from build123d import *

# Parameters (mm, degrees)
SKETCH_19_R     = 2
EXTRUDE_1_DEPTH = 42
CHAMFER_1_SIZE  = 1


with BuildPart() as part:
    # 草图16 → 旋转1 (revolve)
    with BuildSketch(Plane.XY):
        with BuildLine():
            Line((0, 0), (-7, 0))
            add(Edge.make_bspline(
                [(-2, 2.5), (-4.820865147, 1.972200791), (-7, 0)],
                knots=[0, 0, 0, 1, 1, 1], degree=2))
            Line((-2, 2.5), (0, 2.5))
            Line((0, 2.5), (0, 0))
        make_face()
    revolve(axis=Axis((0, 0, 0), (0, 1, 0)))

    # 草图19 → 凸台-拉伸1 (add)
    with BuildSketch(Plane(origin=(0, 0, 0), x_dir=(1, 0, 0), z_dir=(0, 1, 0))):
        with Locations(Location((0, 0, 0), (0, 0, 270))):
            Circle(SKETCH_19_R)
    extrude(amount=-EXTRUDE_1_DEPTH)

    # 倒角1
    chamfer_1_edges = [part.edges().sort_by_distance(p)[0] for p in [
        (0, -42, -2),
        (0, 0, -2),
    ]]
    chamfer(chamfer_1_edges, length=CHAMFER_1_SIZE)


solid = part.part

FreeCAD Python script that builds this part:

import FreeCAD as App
import Part
import Sketcher
from FreeCAD import Vector
Q = App.Units.Quantity


def edges_at(feature, points):
    """Names of the edges that pass closest to the given points."""
    edges = feature.Shape.Edges
    near = lambda p: min(range(len(edges)), key=lambda i: edges[i].distToShape(Part.Vertex(*p))[0])
    return sorted({f"Edge{near(p) + 1}" for p in points})

doc = App.newDocument("Part")
params = doc.addObject("Spreadsheet::Sheet", "Params")
for row, (alias, value) in enumerate([
    ("revolution_angle", "360 deg"),
    ("sketch2_diameter", "4 mm"),
    ("pad1_length", "42 mm"),
    ("chamfer_size", "1 mm"),
], start=1):
    params.set(f"A{row}", alias)
    params.set(f"B{row}", "=" + value)
    params.setAlias(f"B{row}", alias)

body = doc.addObject("PartDesign::Body", "Body")

sketch1 = body.newObject("Sketcher::SketchObject", "Sketch")
sketch1.AttachmentSupport = (doc.getObject("XY_Plane"), [""])
sketch1.MapMode = "FlatFace"
sketch1.addGeometry([
    Part.LineSegment(Vector(-7, 0, 0), Vector(0, 0, 0)),
    Part.LineSegment(Vector(0, 0, 0), Vector(0, 2.5, 0)),
    Part.LineSegment(Vector(0, 2.5, 0), Vector(-2, 2.5, 0)),
    Part.BSplineCurve([Vector(-2, 2.5, 0), Vector(-4.820865, 1.972201, 0), Vector(-7, 0, 0)], [3, 3], [0, 1], False, 2, [1, 1, 1], False),
], False)
sketch1.addConstraint([
    Sketcher.Constraint("Block", 3),
    Sketcher.Constraint("Coincident", 0, 2, 1, 1),
    Sketcher.Constraint("Coincident", 1, 2, 2, 1),
    Sketcher.Constraint("Coincident", 2, 2, 3, 1),
    Sketcher.Constraint("Coincident", 3, 2, 0, 1),
    Sketcher.Constraint("Horizontal", 0),
    Sketcher.Constraint("Vertical", 1),
    Sketcher.Constraint("Horizontal", 2),
    Sketcher.Constraint("PointOnObject", 1, 2, -2),
])
revolution = body.newObject("PartDesign::Revolution", "Revolution")
revolution.Profile = sketch1
revolution.ReferenceAxis = (sketch1, ["V_Axis"])
revolution.setExpression("Angle", "Params.revolution_angle")

sketch2 = body.newObject("Sketcher::SketchObject", "Sketch001")
sketch2.AttachmentSupport = (doc.getObject("XZ_Plane"), [""])
sketch2.MapMode = "FlatFace"
sketch2.addGeometry(Part.Circle(Vector(0, 0, 0), Vector(0, 0, 1), 2), False)
sketch2.addConstraint([
    Sketcher.Constraint("Coincident", 0, 3, -1, 1),
    Sketcher.Constraint("Diameter", 0, Q("4 mm")),
])
sketch2.setExpression("Constraints[1]", "Params.sketch2_diameter")
pad1 = body.newObject("PartDesign::Pad", "Pad")
pad1.Profile = sketch2
pad1.setExpression("Length", "Params.pad1_length")
doc.recompute()

chamfer = body.newObject("PartDesign::Chamfer", "Chamfer")
chamfer.Base = (pad1, edges_at(pad1, [(0, -42, -2), (0, 0, -2)]))
chamfer.setExpression("Size", "Params.chamfer_size")

doc.recompute()
